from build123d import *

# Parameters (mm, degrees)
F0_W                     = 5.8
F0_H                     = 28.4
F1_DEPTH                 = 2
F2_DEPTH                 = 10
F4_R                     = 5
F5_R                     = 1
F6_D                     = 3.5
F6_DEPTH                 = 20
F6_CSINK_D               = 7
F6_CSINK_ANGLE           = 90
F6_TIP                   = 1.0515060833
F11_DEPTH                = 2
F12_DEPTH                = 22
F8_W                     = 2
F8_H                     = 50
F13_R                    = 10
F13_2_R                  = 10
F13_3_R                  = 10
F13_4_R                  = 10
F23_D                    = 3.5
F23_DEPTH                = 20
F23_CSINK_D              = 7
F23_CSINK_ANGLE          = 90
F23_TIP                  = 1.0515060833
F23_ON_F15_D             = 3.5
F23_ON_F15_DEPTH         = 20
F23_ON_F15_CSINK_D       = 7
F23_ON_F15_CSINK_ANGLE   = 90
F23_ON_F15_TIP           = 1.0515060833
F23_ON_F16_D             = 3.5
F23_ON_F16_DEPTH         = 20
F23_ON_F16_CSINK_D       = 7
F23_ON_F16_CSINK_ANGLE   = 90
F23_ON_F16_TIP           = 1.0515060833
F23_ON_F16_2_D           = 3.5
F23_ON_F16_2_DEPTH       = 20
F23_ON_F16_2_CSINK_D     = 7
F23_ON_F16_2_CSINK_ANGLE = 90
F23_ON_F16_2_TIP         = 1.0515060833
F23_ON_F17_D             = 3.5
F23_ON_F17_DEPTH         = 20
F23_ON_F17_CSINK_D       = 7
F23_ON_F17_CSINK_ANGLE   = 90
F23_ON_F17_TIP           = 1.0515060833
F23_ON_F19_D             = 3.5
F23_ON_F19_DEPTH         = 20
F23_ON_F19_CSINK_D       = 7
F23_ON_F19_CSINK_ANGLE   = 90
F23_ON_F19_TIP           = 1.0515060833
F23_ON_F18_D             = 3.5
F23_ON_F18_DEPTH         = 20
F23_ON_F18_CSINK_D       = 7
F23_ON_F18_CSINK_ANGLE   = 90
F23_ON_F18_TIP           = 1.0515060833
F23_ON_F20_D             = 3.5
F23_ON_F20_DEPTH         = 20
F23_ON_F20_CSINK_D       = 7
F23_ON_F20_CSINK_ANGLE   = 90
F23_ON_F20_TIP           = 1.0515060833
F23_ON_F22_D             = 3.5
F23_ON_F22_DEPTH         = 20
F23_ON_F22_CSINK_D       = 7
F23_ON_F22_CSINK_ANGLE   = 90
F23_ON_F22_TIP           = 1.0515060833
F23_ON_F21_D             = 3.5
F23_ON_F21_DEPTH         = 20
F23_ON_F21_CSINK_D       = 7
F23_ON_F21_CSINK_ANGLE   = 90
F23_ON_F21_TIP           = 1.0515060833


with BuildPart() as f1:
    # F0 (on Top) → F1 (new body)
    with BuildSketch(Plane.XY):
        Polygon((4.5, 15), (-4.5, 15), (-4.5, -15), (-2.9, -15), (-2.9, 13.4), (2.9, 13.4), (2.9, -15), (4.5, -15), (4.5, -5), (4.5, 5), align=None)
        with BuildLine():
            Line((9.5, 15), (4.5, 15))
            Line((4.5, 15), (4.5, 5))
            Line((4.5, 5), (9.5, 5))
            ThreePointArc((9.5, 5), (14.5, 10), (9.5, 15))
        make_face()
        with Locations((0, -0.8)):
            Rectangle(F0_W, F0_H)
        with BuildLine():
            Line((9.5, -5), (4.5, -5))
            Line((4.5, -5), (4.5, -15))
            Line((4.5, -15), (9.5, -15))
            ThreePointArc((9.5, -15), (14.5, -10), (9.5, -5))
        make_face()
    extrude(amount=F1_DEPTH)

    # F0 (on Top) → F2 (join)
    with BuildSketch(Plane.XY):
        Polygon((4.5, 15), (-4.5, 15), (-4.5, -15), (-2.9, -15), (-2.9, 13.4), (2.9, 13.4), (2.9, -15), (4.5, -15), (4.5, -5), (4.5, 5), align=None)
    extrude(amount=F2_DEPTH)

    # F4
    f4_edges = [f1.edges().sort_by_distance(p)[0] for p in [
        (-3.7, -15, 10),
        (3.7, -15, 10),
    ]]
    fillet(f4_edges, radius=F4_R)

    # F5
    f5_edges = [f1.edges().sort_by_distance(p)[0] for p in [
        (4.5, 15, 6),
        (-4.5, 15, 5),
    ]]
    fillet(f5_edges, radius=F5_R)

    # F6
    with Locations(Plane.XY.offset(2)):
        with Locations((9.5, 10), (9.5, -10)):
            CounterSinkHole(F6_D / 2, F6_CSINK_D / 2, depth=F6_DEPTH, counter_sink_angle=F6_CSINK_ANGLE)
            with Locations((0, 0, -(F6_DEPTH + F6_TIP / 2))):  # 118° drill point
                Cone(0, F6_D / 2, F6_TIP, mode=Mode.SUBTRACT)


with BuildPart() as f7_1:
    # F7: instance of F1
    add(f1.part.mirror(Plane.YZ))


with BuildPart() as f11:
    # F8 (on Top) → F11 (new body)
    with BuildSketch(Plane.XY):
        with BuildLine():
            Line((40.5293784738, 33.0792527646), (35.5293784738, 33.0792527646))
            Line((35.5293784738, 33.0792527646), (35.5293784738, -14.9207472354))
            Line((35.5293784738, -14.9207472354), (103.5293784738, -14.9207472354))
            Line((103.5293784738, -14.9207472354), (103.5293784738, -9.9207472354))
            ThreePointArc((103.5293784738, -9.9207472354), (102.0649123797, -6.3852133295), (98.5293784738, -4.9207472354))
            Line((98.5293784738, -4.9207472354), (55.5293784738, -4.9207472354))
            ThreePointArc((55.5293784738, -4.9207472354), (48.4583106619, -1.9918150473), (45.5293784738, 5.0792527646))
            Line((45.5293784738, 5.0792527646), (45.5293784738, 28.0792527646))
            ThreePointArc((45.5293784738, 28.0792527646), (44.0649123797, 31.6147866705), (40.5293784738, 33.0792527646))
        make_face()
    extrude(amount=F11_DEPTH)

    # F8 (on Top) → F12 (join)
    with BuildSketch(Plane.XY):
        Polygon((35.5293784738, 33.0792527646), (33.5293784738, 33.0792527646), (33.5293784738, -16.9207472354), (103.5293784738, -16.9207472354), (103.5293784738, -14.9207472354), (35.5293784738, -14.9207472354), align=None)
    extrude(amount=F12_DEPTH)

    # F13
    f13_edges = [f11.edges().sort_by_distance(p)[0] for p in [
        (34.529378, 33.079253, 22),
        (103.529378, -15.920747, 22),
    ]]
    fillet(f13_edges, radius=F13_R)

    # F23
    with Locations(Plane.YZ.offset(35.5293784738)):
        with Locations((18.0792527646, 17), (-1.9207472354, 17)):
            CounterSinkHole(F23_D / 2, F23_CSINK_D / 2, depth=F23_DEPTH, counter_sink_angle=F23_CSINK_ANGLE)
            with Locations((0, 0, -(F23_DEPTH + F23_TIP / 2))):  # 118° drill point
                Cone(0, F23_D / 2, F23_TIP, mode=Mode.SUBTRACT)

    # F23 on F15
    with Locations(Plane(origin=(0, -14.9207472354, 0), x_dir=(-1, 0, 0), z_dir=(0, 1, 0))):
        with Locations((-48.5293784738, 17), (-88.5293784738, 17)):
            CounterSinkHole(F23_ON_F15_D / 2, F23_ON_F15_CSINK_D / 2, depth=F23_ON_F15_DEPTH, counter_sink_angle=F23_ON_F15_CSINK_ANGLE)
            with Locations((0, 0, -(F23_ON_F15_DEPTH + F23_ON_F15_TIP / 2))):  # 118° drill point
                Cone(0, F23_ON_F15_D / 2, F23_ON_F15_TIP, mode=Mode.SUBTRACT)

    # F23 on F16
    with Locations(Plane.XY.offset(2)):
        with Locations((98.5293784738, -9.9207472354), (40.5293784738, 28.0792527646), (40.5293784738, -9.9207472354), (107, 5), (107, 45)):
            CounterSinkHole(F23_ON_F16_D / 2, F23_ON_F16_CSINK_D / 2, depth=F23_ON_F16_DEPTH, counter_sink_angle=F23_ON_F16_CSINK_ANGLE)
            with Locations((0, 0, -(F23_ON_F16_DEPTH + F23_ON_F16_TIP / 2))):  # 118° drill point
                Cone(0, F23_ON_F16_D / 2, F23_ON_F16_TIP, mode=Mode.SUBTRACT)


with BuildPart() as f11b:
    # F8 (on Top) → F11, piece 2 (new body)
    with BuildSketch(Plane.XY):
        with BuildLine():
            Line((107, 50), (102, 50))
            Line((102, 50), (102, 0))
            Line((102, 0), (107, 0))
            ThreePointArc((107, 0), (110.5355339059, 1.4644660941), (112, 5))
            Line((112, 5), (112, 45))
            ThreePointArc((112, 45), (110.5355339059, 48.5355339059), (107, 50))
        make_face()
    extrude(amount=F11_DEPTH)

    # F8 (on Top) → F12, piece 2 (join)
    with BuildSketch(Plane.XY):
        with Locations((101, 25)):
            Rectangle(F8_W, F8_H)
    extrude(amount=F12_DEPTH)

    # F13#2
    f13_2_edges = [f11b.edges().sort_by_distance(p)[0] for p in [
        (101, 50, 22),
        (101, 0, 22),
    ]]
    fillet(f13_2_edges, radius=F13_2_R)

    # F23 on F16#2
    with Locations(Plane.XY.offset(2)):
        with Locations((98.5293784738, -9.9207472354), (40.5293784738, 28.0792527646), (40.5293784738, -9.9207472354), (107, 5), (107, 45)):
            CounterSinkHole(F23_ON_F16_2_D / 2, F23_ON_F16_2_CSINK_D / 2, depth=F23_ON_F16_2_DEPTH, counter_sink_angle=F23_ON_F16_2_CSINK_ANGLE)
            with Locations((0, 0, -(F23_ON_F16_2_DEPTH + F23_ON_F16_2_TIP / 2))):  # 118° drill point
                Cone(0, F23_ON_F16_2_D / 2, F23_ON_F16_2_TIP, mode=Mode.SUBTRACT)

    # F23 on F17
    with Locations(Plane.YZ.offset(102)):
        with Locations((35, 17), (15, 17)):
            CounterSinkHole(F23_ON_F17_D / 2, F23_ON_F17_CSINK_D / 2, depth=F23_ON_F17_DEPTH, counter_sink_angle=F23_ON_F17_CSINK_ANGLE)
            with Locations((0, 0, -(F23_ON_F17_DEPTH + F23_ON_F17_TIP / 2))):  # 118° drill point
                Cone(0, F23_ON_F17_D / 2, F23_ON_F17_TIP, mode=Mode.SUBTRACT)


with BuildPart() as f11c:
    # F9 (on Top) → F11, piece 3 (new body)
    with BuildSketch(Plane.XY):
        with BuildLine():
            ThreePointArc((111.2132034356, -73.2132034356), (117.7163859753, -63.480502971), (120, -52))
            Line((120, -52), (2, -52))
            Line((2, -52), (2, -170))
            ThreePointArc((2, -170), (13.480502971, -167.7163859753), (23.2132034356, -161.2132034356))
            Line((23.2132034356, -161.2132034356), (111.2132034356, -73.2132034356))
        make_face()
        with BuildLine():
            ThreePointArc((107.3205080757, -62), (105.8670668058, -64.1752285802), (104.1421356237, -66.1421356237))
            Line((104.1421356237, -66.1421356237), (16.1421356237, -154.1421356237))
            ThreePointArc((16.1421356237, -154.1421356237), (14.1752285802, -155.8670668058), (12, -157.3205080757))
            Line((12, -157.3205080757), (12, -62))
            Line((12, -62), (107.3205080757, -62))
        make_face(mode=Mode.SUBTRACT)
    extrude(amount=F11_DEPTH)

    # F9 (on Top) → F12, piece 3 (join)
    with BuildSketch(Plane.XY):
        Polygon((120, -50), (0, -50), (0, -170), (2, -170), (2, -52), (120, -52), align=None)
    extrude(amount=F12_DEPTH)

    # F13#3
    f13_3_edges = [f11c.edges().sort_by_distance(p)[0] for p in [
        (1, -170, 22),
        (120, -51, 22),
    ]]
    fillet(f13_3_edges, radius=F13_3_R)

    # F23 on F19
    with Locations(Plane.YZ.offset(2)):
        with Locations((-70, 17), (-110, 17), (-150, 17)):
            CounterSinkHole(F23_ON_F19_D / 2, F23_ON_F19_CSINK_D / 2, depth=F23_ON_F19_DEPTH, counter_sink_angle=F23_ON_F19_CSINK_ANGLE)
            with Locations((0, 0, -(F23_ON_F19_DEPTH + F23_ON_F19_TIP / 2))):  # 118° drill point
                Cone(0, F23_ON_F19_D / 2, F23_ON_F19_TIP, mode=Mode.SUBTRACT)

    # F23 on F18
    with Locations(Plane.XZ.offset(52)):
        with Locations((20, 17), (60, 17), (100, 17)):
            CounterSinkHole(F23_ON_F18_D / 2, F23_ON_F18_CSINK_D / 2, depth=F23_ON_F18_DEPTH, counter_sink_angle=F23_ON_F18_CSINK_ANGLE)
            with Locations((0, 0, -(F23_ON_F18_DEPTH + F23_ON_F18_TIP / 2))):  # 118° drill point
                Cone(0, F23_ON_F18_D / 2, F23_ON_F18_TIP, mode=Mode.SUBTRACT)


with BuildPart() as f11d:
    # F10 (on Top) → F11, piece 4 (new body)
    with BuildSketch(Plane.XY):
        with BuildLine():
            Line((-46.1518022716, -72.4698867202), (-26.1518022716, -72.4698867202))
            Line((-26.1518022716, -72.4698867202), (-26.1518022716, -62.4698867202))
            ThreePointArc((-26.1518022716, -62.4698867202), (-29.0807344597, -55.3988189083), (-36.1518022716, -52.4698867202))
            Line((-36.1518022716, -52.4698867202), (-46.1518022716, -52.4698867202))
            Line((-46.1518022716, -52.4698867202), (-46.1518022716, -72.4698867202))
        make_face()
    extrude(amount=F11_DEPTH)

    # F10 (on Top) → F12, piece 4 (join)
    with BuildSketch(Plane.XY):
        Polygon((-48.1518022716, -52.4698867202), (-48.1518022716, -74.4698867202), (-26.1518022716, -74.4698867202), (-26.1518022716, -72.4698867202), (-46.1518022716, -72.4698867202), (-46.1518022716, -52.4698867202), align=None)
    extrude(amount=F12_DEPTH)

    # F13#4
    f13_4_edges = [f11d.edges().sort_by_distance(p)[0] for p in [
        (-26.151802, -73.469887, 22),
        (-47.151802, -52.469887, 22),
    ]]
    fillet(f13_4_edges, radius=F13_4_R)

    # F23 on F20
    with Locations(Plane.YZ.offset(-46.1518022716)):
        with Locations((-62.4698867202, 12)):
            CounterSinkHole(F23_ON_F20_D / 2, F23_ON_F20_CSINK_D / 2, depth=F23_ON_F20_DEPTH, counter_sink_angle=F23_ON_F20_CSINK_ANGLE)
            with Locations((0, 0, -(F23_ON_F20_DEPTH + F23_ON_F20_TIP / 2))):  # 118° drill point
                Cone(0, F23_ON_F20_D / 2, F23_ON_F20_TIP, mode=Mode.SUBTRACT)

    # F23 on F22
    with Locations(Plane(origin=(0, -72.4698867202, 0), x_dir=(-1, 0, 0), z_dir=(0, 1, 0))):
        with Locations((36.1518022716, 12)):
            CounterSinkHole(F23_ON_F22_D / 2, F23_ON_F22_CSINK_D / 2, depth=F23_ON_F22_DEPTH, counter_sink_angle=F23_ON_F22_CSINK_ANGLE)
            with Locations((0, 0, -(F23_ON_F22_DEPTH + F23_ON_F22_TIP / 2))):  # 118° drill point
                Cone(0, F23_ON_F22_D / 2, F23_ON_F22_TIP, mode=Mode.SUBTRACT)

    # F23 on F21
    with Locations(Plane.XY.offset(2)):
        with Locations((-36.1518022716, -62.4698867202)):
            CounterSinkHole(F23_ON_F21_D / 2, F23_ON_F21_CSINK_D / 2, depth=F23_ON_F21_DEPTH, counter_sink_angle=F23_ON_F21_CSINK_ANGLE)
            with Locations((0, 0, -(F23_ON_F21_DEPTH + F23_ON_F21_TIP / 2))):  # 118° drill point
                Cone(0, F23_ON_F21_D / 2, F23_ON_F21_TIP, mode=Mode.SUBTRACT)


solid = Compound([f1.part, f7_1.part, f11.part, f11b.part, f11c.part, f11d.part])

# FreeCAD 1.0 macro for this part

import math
import FreeCAD as App
import Part
import Sketcher

V = App.Vector


def edges_at(feature, points):
    """Names of the edges that pass closest to the given points."""
    edges = feature.Shape.Edges
    near = lambda p: min(range(len(edges)), key=lambda i: edges[i].distToShape(Part.Vertex(*p))[0])
    return sorted({f"Edge{near(p) + 1}" for p in points})


def add_polygon(sketch, points):
    """Adds a closed chain of lines whose ends are joined by coincident constraints."""
    first, n = sketch.GeometryCount, len(points)
    for a, b in zip(points, points[1:] + points[:1]):
        sketch.addGeometry(Part.LineSegment(App.Vector(*a, 0), App.Vector(*b, 0)), False)
    for i in range(n):
        sketch.addConstraint(Sketcher.Constraint("Coincident", first + i, 2, first + (i + 1) % n, 1))

doc = App.newDocument("Part")
params = doc.addObject("Spreadsheet::Sheet", "Params")
for row, (alias, value) in enumerate([
    ("sketch1_radius", "5 mm"),
    ("sketch1_width", "14 mm"),
    ("sketch1_width2", "5 mm"),
    ("sketch1_height", "30 mm"),
    ("pad1_length", "2 mm"),
    ("sketch2_width", "9 mm"),
    ("sketch2_height", "30 mm"),
    ("sketch2_width2", "1.6 mm"),
    ("sketch2_height2", "28.4 mm"),
    ("pad2_length", "10 mm"),
    ("fillet_radius", "5 mm"),
    ("fillet2_radius", "1 mm"),
    ("sketch3_diameter", "3.5 mm"),
    ("hole_diameter", "3.5 mm"),
    ("hole_depth", "20 mm"),
    ("hole_csink_diameter", "7 mm"),
    ("sketch4_radius", "5 mm"),
    ("sketch4_radius2", "10 mm"),
    ("sketch4_width", "5 mm"),
    ("sketch4_width2", "68 mm"),
    ("sketch4_height", "48 mm"),
    ("pad3_length", "2 mm"),
    ("sketch5_width", "2 mm"),
    ("sketch5_width2", "70 mm"),
    ("sketch5_height", "50 mm"),
    ("pad4_length", "22 mm"),
    ("fillet3_radius", "10 mm"),
    ("sketch6_diameter", "3.5 mm"),
    ("hole2_diameter", "3.5 mm"),
    ("hole2_depth", "20 mm"),
    ("hole2_csink_diameter", "7 mm"),
    ("sketch7_diameter", "3.5 mm"),
    ("hole3_diameter", "3.5 mm"),
    ("hole3_depth", "20 mm"),
    ("hole3_csink_diameter", "7 mm"),
    ("sketch8_diameter", "3.5 mm"),
    ("hole4_diameter", "3.5 mm"),
    ("hole4_depth", "20 mm"),
    ("hole4_csink_diameter", "7 mm"),
    ("sketch9_radius", "5 mm"),
    ("sketch9_width", "5 mm"),
    ("sketch9_height", "50 mm"),
    ("pad5_length", "2 mm"),
    ("sketch10_width", "2 mm"),
    ("sketch10_height", "50 mm"),
    ("pad6_length", "22 mm"),
    ("fillet4_radius", "10 mm"),
    ("sketch11_diameter", "3.5 mm"),
    ("hole5_diameter", "3.5 mm"),
    ("hole5_depth", "20 mm"),
    ("hole5_csink_diameter", "7 mm"),
    ("sketch12_diameter", "3.5 mm"),
    ("hole6_diameter", "3.5 mm"),
    ("hole6_depth", "20 mm"),
    ("hole6_csink_diameter", "7 mm"),
    ("sketch13_radius", "30 mm"),
    ("sketch13_radius2", "20 mm"),
    ("sketch13_width", "118 mm"),
    ("pad7_length", "2 mm"),
    ("sketch14_width", "120 mm"),
    ("sketch14_width2", "2 mm"),
    ("pad8_length", "22 mm"),
    ("fillet5_radius", "10 mm"),
    ("sketch15_diameter", "3.5 mm"),
    ("hole7_diameter", "3.5 mm"),
    ("hole7_depth", "20 mm"),
    ("hole7_csink_diameter", "7 mm"),
    ("sketch16_diameter", "3.5 mm"),
    ("hole8_diameter", "3.5 mm"),
    ("hole8_depth", "20 mm"),
    ("hole8_csink_diameter", "7 mm"),
    ("sketch17_radius", "10 mm"),
    ("sketch17_width", "20 mm"),
    ("pad9_length", "2 mm"),
    ("sketch18_width", "22 mm"),
    ("sketch18_width2", "20 mm"),
    ("pad10_length", "22 mm"),
    ("fillet6_radius", "10 mm"),
    ("sketch19_diameter", "3.5 mm"),
    ("hole9_diameter", "3.5 mm"),
    ("hole9_depth", "20 mm"),
    ("hole9_csink_diameter", "7 mm"),
    ("sketch20_diameter", "3.5 mm"),
    ("hole10_diameter", "3.5 mm"),
    ("hole10_depth", "20 mm"),
    ("hole10_csink_diameter", "7 mm"),
    ("sketch21_diameter", "3.5 mm"),
    ("hole11_diameter", "3.5 mm"),
    ("hole11_depth", "20 mm"),
    ("hole11_csink_diameter", "7 mm"),
], start=1):
    params.set(f"A{row}", alias)
    params.set(f"B{row}", "=" + value)
    params.setAlias(f"B{row}", alias)

body = doc.addObject("PartDesign::Body", "Body")

# Sketch on XY plane
sketch1 = doc.addObject("Sketcher::SketchObject", "Sketch")
body.addObject(sketch1)
sketch1.AttachmentSupport = (doc.XY_Plane, [""])
sketch1.MapMode = "FlatFace"
sketch1.addGeometry([
    Part.LineSegment(V(-4, 15, 0), V(-4, -15, 0)),  # 0
    Part.LineSegment(V(-4, -15, 0), V(10, -15, 0)),  # 1
    Part.ArcOfCircle(Part.Circle(V(10, -10, 0), V(0, 0, 1), 5), math.radians(-90), math.radians(90)),  # 2
    Part.LineSegment(V(10, -5, 0), V(4, -5, 0)),  # 3
    Part.LineSegment(V(4, -5, 0), V(4, 5, 0)),  # 4
    Part.LineSegment(V(4, 5, 0), V(10, 5, 0)),  # 5
    Part.ArcOfCircle(Part.Circle(V(10, 10, 0), V(0, 0, 1), 5), math.radians(-90), math.radians(90)),  # 6
    Part.LineSegment(V(10, 15, 0), V(-4, 15, 0)),  # 7
], False)
sketch1.addConstraint([
    Sketcher.Constraint("Coincident", 0, 2, 1, 1),
    Sketcher.Constraint("Tangent", 1, 2, 2, 1),
    Sketcher.Constraint("Tangent", 2, 2, 3, 1),
    Sketcher.Constraint("Coincident", 3, 2, 4, 1),
    Sketcher.Constraint("Coincident", 4, 2, 5, 1),
    Sketcher.Constraint("Tangent", 5, 2, 6, 1),
    Sketcher.Constraint("Tangent", 6, 2, 7, 1),
    Sketcher.Constraint("Coincident", 7, 2, 0, 1),
    Sketcher.Constraint("Vertical", 0),
    Sketcher.Constraint("Horizontal", 1),
    Sketcher.Constraint("Horizontal", 3),
    Sketcher.Constraint("Vertical", 4),
    Sketcher.Constraint("Horizontal", 5),
    Sketcher.Constraint("Horizontal", 7),
    Sketcher.Constraint("Equal", 2, 6),
    Sketcher.Constraint("Symmetric", 2, 3, 6, 3, -1),
    Sketcher.Constraint("Radius", 2, 5.0),
    Sketcher.Constraint("DistanceX", 1, 1, 1, 2, 14.0),
    Sketcher.Constraint("DistanceX", 3, 2, 3, 1, 5.0),
    Sketcher.Constraint("DistanceY", 0, 2, 0, 1, 30.0),
    Sketcher.Constraint("DistanceX", -1, 1, 2, 3, 9.5),
])
sketch1.setExpression("Constraints[16]", "Params.sketch1_radius")
sketch1.setExpression("Constraints[17]", "Params.sketch1_width")
sketch1.setExpression("Constraints[18]", "Params.sketch1_width2")
sketch1.setExpression("Constraints[19]", "Params.sketch1_height")
pad1 = doc.addObject("PartDesign::Pad", "Pad")
body.addObject(pad1)
pad1.Profile = sketch1
pad1.setExpression("Length", "Params.pad1_length")

# Sketch on XY plane
sketch2 = doc.addObject("Sketcher::SketchObject", "Sketch001")
body.addObject(sketch2)
sketch2.AttachmentSupport = (doc.XY_Plane, [""])
sketch2.MapMode = "FlatFace"
add_polygon(sketch2, [(4.5, 15), (-4.5, 15), (-4.5, -15), (-2.9, -15), (-2.9, 13.4), (2.9, 13.4), (2.9, -15), (4.5, -15)])  # lines 0-7
sketch2.addConstraint([
    Sketcher.Constraint("Horizontal", 0),
    Sketcher.Constraint("Vertical", 1),
    Sketcher.Constraint("Horizontal", 2),
    Sketcher.Constraint("Vertical", 3),
    Sketcher.Constraint("Horizontal", 4),
    Sketcher.Constraint("Vertical", 5),
    Sketcher.Constraint("Horizontal", 6),
    Sketcher.Constraint("Vertical", 7),
    Sketcher.Constraint("Symmetric", 0, 2, 6, 2, -1, 1),
    Sketcher.Constraint("Symmetric", 2, 2, 5, 2, -2),
    Sketcher.Constraint("DistanceX", 0, 2, 0, 1, 9.0),
    Sketcher.Constraint("DistanceY", 1, 2, 1, 1, 30.0),
    Sketcher.Constraint("DistanceX", 2, 1, 2, 2, 1.6),
    Sketcher.Constraint("DistanceY", 3, 1, 3, 2, 28.4),
])
sketch2.setExpression("Constraints[18]", "Params.sketch2_width")
sketch2.setExpression("Constraints[19]", "Params.sketch2_height")
sketch2.setExpression("Constraints[20]", "Params.sketch2_width2")
sketch2.setExpression("Constraints[21]", "Params.sketch2_height2")
pad2 = doc.addObject("PartDesign::Pad", "Pad001")
body.addObject(pad2)
pad2.Profile = sketch2
pad2.setExpression("Length", "Params.pad2_length")
doc.recompute()

fillet = doc.addObject("PartDesign::Fillet", "Fillet")
body.addObject(fillet)
fillet.Base = (pad2, edges_at(pad2, [(-3.7, -15, 10), (3.7, -15, 10)]))
fillet.setExpression("Radius", "Params.fillet_radius")
doc.recompute()

fillet2 = doc.addObject("PartDesign::Fillet", "Fillet001")
body.addObject(fillet2)
fillet2.Base = (fillet, edges_at(fillet, [(4.5, 15, 6), (-4.5, 15, 5)]))
fillet2.setExpression("Radius", "Params.fillet2_radius")

# Sketch on XY plane
sketch3 = doc.addObject("Sketcher::SketchObject", "Sketch002")
body.addObject(sketch3)
sketch3.AttachmentSupport = (doc.XY_Plane, [""])
sketch3.MapMode = "FlatFace"
sketch3.AttachmentOffset = App.Placement(V(0, 0, 2), App.Rotation())
sketch3.addGeometry([
    Part.Circle(V(9.5, 10, 0), V(0, 0, 1), 1.8),
    Part.Circle(V(9.5, -10, 0), V(0, 0, 1), 1.8),
], False)
sketch3.addConstraint([
    Sketcher.Constraint("Equal", 0, 1),
    Sketcher.Constraint("Symmetric", 0, 3, 1, 3, -1),
    Sketcher.Constraint("Diameter", 0, 3.5),
    Sketcher.Constraint("DistanceY", -1, 1, 0, 3, 10.0),
    Sketcher.Constraint("DistanceX", -1, 1, 0, 3, 9.5),
])
sketch3.setExpression("Constraints[2]", "Params.sketch3_diameter")
doc.recompute()
hole = doc.addObject("PartDesign::Hole", "Hole")
body.addObject(hole)
hole.Profile = sketch3
hole.ThreadType = "None"
hole.setExpression("Diameter", "Params.hole_diameter")
hole.DepthType = "Dimension"
hole.setExpression("Depth", "Params.hole_depth")
hole.DrillPoint = "Angled"
hole.DrillPointAngle = 118
hole.HoleCutType = "Countersink"
hole.setExpression("HoleCutDiameter", "Params.hole_csink_diameter")
hole.HoleCutCountersinkAngle = 90
body2 = doc.addObject("PartDesign::Body", "Body001")
doc.recompute()

mirroring = doc.addObject("Part::Mirroring", "Mirroring")
mirroring.Source = body
mirroring.Base = V(0, 0, 0)
mirroring.Normal = V(1, 0, 0)
body2.BaseFeature = mirroring
doc.recompute()
body3 = doc.addObject("PartDesign::Body", "Body002")

# Sketch on XY plane
sketch4 = doc.addObject("Sketcher::SketchObject", "Sketch003")
body3.addObject(sketch4)
sketch4.AttachmentSupport = (doc.getObject("XY_Plane002"), [""])
sketch4.MapMode = "FlatFace"
sketch4.addGeometry([
    Part.LineSegment(V(41, 33, 0), V(36, 33, 0)),  # 0
    Part.LineSegment(V(36, 33, 0), V(36, -15, 0)),  # 1
    Part.LineSegment(V(36, -15, 0), V(104, -15, 0)),  # 2
    Part.LineSegment(V(104, -15, 0), V(104, -10, 0)),  # 3
    Part.ArcOfCircle(Part.Circle(V(99, -10, 0), V(0, 0, 1), 5), math.radians(0), math.radians(90)),  # 4
    Part.LineSegment(V(99, -5, 0), V(56, -5, 0)),  # 5
    Part.ArcOfCircle(Part.Circle(V(56, 5, 0), V(0, 0, 1), 10), math.radians(180), math.radians(270)),  # 6
    Part.LineSegment(V(46, 5, 0), V(46, 28, 0)),  # 7
    Part.ArcOfCircle(Part.Circle(V(41, 28, 0), V(0, 0, 1), 5), math.radians(0), math.radians(90)),  # 8
], False)
sketch4.addConstraint([
    Sketcher.Constraint("Coincident", 0, 2, 1, 1),
    Sketcher.Constraint("Coincident", 1, 2, 2, 1),
    Sketcher.Constraint("Coincident", 2, 2, 3, 1),
    Sketcher.Constraint("Tangent", 3, 2, 4, 1),
    Sketcher.Constraint("Tangent", 4, 2, 5, 1),
    Sketcher.Constraint("Tangent", 5, 2, 6, 2),
    Sketcher.Constraint("Tangent", 6, 1, 7, 1),
    Sketcher.Constraint("Tangent", 7, 2, 8, 1),
    Sketcher.Constraint("Tangent", 8, 2, 0, 1),
    Sketcher.Constraint("Horizontal", 0),
    Sketcher.Constraint("Vertical", 1),
    Sketcher.Constraint("Horizontal", 2),
    Sketcher.Constraint("Vertical", 3),
    Sketcher.Constraint("Horizontal", 5),
    Sketcher.Constraint("Vertical", 7),
    Sketcher.Constraint("Equal", 4, 8),
    Sketcher.Constraint("Equal", 0, 3),
    Sketcher.Constraint("Radius", 4, 5.0),
    Sketcher.Constraint("Radius", 6, 10.0),
    Sketcher.Constraint("DistanceX", 0, 2, 0, 1, 5.0),
    Sketcher.Constraint("DistanceX", 2, 1, 2, 2, 68.0),
    Sketcher.Constraint("DistanceY", 1, 2, 1, 1, 48.0),
    Sketcher.Constraint("DistanceX", -1, 1, 4, 3, 98.529378),
    Sketcher.Constraint("DistanceY", 4, 3, -1, 1, 9.920747),
])
sketch4.setExpression("Constraints[17]", "Params.sketch4_radius")
sketch4.setExpression("Constraints[18]", "Params.sketch4_radius2")
sketch4.setExpression("Constraints[19]", "Params.sketch4_width")
sketch4.setExpression("Constraints[20]", "Params.sketch4_width2")
sketch4.setExpression("Constraints[21]", "Params.sketch4_height")
pad3 = doc.addObject("PartDesign::Pad", "Pad002")
body3.addObject(pad3)
pad3.Profile = sketch4
pad3.setExpression("Length", "Params.pad3_length")

# Sketch on XY plane
sketch5 = doc.addObject("Sketcher::SketchObject", "Sketch004")
body3.addObject(sketch5)
sketch5.AttachmentSupport = (doc.getObject("XY_Plane002"), [""])
sketch5.MapMode = "FlatFace"
add_polygon(sketch5, [(35.5, 33.1), (33.5, 33.1), (33.5, -16.9), (103.5, -16.9), (103.5, -14.9), (35.5, -14.9)])  # lines 0-5
sketch5.addConstraint([
    Sketcher.Constraint("Horizontal", 0),
    Sketcher.Constraint("Vertical", 1),
    Sketcher.Constraint("Horizontal", 2),
    Sketcher.Constraint("Vertical", 3),
    Sketcher.Constraint("Horizontal", 4),
    Sketcher.Constraint("Vertical", 5),
    Sketcher.Constraint("Equal", 0, 3),
    Sketcher.Constraint("DistanceX", 0, 2, 0, 1, 2.0),
    Sketcher.Constraint("DistanceX", 2, 1, 2, 2, 70.0),
    Sketcher.Constraint("DistanceY", 1, 2, 1, 1, 50.0),
    Sketcher.Constraint("DistanceX", -1, 1, 0, 2, 33.529378),
    Sketcher.Constraint("DistanceY", -1, 1, 0, 2, 33.079253),
])
sketch5.setExpression("Constraints[13]", "Params.sketch5_width")
sketch5.setExpression("Constraints[14]", "Params.sketch5_width2")
sketch5.setExpression("Constraints[15]", "Params.sketch5_height")
pad4 = doc.addObject("PartDesign::Pad", "Pad003")
body3.addObject(pad4)
pad4.Profile = sketch5
pad4.setExpression("Length", "Params.pad4_length")
doc.recompute()

fillet3 = doc.addObject("PartDesign::Fillet", "Fillet002")
body3.addObject(fillet3)
fillet3.Base = (pad4, edges_at(pad4, [(34.529, 33.079, 22), (103.529, -15.921, 22)]))
fillet3.setExpression("Radius", "Params.fillet3_radius")

# Sketch on YZ plane
sketch6 = doc.addObject("Sketcher::SketchObject", "Sketch005")
body3.addObject(sketch6)
sketch6.AttachmentSupport = (doc.getObject("YZ_Plane002"), [""])
sketch6.MapMode = "FlatFace"
sketch6.AttachmentOffset = App.Placement(V(0, 0, 35.529378), App.Rotation())
sketch6.addGeometry([
    Part.Circle(V(18.1, 17, 0), V(0, 0, 1), 1.8),
    Part.Circle(V(-1.9, 17, 0), V(0, 0, 1), 1.8),
], False)
sketch6.addConstraint([
    Sketcher.Constraint("Equal", 0, 1),
    Sketcher.Constraint("Horizontal", 0, 3, 1, 3),
    Sketcher.Constraint("Diameter", 0, 3.5),
    Sketcher.Constraint("DistanceY", -1, 1, 0, 3, 17.0),
    Sketcher.Constraint("DistanceX", 1, 3, 0, 3, 20.0),
    Sketcher.Constraint("DistanceX", -1, 1, 0, 3, 18.079253),
])
sketch6.setExpression("Constraints[2]", "Params.sketch6_diameter")
doc.recompute()
hole2 = doc.addObject("PartDesign::Hole", "Hole001")
body3.addObject(hole2)
hole2.Profile = sketch6
hole2.ThreadType = "None"
hole2.setExpression("Diameter", "Params.hole2_diameter")
hole2.DepthType = "Dimension"
hole2.setExpression("Depth", "Params.hole2_depth")
hole2.DrillPoint = "Angled"
hole2.DrillPointAngle = 118
hole2.HoleCutType = "Countersink"
hole2.setExpression("HoleCutDiameter", "Params.hole2_csink_diameter")
hole2.HoleCutCountersinkAngle = 90

# Sketch on XZ plane
sketch7 = doc.addObject("Sketcher::SketchObject", "Sketch006")
body3.addObject(sketch7)
sketch7.AttachmentSupport = (doc.getObject("XZ_Plane002"), [""])
sketch7.MapMode = "FlatFace"
sketch7.AttachmentOffset = App.Placement(V(0, 0, 14.920747), App.Rotation())
sketch7.addGeometry([
    Part.Circle(V(48.5, 17, 0), V(0, 0, 1), 1.8),
    Part.Circle(V(88.5, 17, 0), V(0, 0, 1), 1.8),
], False)
sketch7.addConstraint([
    Sketcher.Constraint("Equal", 0, 1),
    Sketcher.Constraint("Horizontal", 0, 3, 1, 3),
    Sketcher.Constraint("Diameter", 0, 3.5),
    Sketcher.Constraint("DistanceY", -1, 1, 0, 3, 17.0),
    Sketcher.Constraint("DistanceX", 0, 3, 1, 3, 40.0),
    Sketcher.Constraint("DistanceX", -1, 1, 0, 3, 48.529378),
])
sketch7.setExpression("Constraints[2]", "Params.sketch7_diameter")
doc.recompute()
hole3 = doc.addObject("PartDesign::Hole", "Hole002")
body3.addObject(hole3)
hole3.Profile = sketch7
hole3.ThreadType = "None"
hole3.setExpression("Diameter", "Params.hole3_diameter")
hole3.DepthType = "Dimension"
hole3.setExpression("Depth", "Params.hole3_depth")
hole3.DrillPoint = "Angled"
hole3.DrillPointAngle = 118
hole3.HoleCutType = "Countersink"
hole3.setExpression("HoleCutDiameter", "Params.hole3_csink_diameter")
hole3.HoleCutCountersinkAngle = 90
hole3.Reversed = True

# Sketch on XY plane
sketch8 = doc.addObject("Sketcher::SketchObject", "Sketch007")
body3.addObject(sketch8)
sketch8.AttachmentSupport = (doc.getObject("XY_Plane002"), [""])
sketch8.MapMode = "FlatFace"
sketch8.AttachmentOffset = App.Placement(V(0, 0, 2), App.Rotation())
sketch8.addGeometry([
    Part.Circle(V(98.5, -9.9, 0), V(0, 0, 1), 1.8),  # 0
    Part.Circle(V(40.5, 28.1, 0), V(0, 0, 1), 1.8),  # 1
    Part.Circle(V(40.5, -9.9, 0), V(0, 0, 1), 1.8),  # 2
    Part.Circle(V(107, 5, 0), V(0, 0, 1), 1.8),  # 3
    Part.Circle(V(107, 45, 0), V(0, 0, 1), 1.8),  # 4
], False)
sketch8.addConstraint([
    Sketcher.Constraint("Equal", 0, 1),
    Sketcher.Constraint("Equal", 1, 2),
    Sketcher.Constraint("Equal", 2, 3),
    Sketcher.Constraint("Equal", 3, 4),
    Sketcher.Constraint("Horizontal", 0, 3, 2, 3),
    Sketcher.Constraint("Vertical", 1, 3, 2, 3),
    Sketcher.Constraint("Vertical", 3, 3, 4, 3),
    Sketcher.Constraint("Diameter", 0, 3.5),
    Sketcher.Constraint("DistanceX", -1, 1, 3, 3, 107.0),
    Sketcher.Constraint("DistanceY", -1, 1, 3, 3, 5.0),
    Sketcher.Constraint("DistanceY", -1, 1, 4, 3, 45.0),
    Sketcher.Constraint("DistanceX", 1, 3, 0, 3, 58.0),
    Sketcher.Constraint("DistanceY", 0, 3, 1, 3, 38.0),
    Sketcher.Constraint("DistanceX", -1, 1, 0, 3, 98.529378),
    Sketcher.Constraint("DistanceY", 0, 3, -1, 1, 9.920747),
])
sketch8.setExpression("Constraints[7]", "Params.sketch8_diameter")
doc.recompute()
hole4 = doc.addObject("PartDesign::Hole", "Hole003")
body3.addObject(hole4)
hole4.Profile = sketch8
hole4.ThreadType = "None"
hole4.setExpression("Diameter", "Params.hole4_diameter")
hole4.DepthType = "Dimension"
hole4.setExpression("Depth", "Params.hole4_depth")
hole4.DrillPoint = "Angled"
hole4.DrillPointAngle = 118
hole4.HoleCutType = "Countersink"
hole4.setExpression("HoleCutDiameter", "Params.hole4_csink_diameter")
hole4.HoleCutCountersinkAngle = 90
body4 = doc.addObject("PartDesign::Body", "Body003")

# Sketch on XY plane
sketch9 = doc.addObject("Sketcher::SketchObject", "Sketch008")
body4.addObject(sketch9)
sketch9.AttachmentSupport = (doc.getObject("XY_Plane003"), [""])
sketch9.MapMode = "FlatFace"
sketch9.addGeometry([
    Part.LineSegment(V(107, 50, 0), V(102, 50, 0)),  # 0
    Part.LineSegment(V(102, 50, 0), V(102, 0, 0)),  # 1
    Part.LineSegment(V(102, 0, 0), V(107, 0, 0)),  # 2
    Part.ArcOfCircle(Part.Circle(V(107, 5, 0), V(0, 0, 1), 5), math.radians(-90), math.radians(0)),  # 3
    Part.LineSegment(V(112, 5, 0), V(112, 45, 0)),  # 4
    Part.ArcOfCircle(Part.Circle(V(107, 45, 0), V(0, 0, 1), 5), math.radians(0), math.radians(90)),  # 5
], False)
sketch9.addConstraint([
    Sketcher.Constraint("Coincident", 0, 2, 1, 1),
    Sketcher.Constraint("Coincident", 1, 2, 2, 1),
    Sketcher.Constraint("Tangent", 2, 2, 3, 1),
    Sketcher.Constraint("Tangent", 3, 2, 4, 1),
    Sketcher.Constraint("Tangent", 4, 2, 5, 1),
    Sketcher.Constraint("Tangent", 5, 2, 0, 1),
    Sketcher.Constraint("Horizontal", 0),
    Sketcher.Constraint("Vertical", 1),
    Sketcher.Constraint("Horizontal", 2),
    Sketcher.Constraint("Vertical", 4),
    Sketcher.Constraint("Equal", 3, 5),
    Sketcher.Constraint("PointOnObject", 1, 2, -1),
    Sketcher.Constraint("Radius", 3, 5.0),
    Sketcher.Constraint("DistanceX", 0, 2, 0, 1, 5.0),
    Sketcher.Constraint("DistanceY", 1, 2, 1, 1, 50.0),
    Sketcher.Constraint("DistanceX", -1, 1, 3, 3, 107.0),
])
sketch9.setExpression("Constraints[12]", "Params.sketch9_radius")
sketch9.setExpression("Constraints[13]", "Params.sketch9_width")
sketch9.setExpression("Constraints[14]", "Params.sketch9_height")
pad5 = doc.addObject("PartDesign::Pad", "Pad004")
body4.addObject(pad5)
pad5.Profile = sketch9
pad5.setExpression("Length", "Params.pad5_length")

# Sketch on XY plane
sketch10 = doc.addObject("Sketcher::SketchObject", "Sketch009")
body4.addObject(sketch10)
sketch10.AttachmentSupport = (doc.getObject("XY_Plane003"), [""])
sketch10.MapMode = "FlatFace"
add_polygon(sketch10, [(100, 50), (100, 0), (102, 0), (102, 50)])  # lines 0-3
sketch10.addConstraint([
    Sketcher.Constraint("Vertical", 0),
    Sketcher.Constraint("Horizontal", 1),
    Sketcher.Constraint("Vertical", 2),
    Sketcher.Constraint("Horizontal", 3),
    Sketcher.Constraint("PointOnObject", 0, 2, -1),
    Sketcher.Constraint("DistanceX", 1, 1, 1, 2, 2.0),
    Sketcher.Constraint("DistanceY", 0, 2, 0, 1, 50.0),
    Sketcher.Constraint("DistanceX", -1, 1, 0, 2, 100.0),
])
sketch10.setExpression("Constraints[9]", "Params.sketch10_width")
sketch10.setExpression("Constraints[10]", "Params.sketch10_height")
pad6 = doc.addObject("PartDesign::Pad", "Pad005")
body4.addObject(pad6)
pad6.Profile = sketch10
pad6.setExpression("Length", "Params.pad6_length")
doc.recompute()

fillet4 = doc.addObject("PartDesign::Fillet", "Fillet003")
body4.addObject(fillet4)
fillet4.Base = (pad6, edges_at(pad6, [(101, 50, 22), (101, 0, 22)]))
fillet4.setExpression("Radius", "Params.fillet4_radius")

# Sketch on XY plane
sketch11 = doc.addObject("Sketcher::SketchObject", "Sketch010")
body4.addObject(sketch11)
sketch11.AttachmentSupport = (doc.getObject("XY_Plane003"), [""])
sketch11.MapMode = "FlatFace"
sketch11.AttachmentOffset = App.Placement(V(0, 0, 2), App.Rotation())
sketch11.addGeometry([
    Part.Circle(V(98.5, -9.9, 0), V(0, 0, 1), 1.8),  # 0
    Part.Circle(V(40.5, 28.1, 0), V(0, 0, 1), 1.8),  # 1
    Part.Circle(V(40.5, -9.9, 0), V(0, 0, 1), 1.8),  # 2
    Part.Circle(V(107, 5, 0), V(0, 0, 1), 1.8),  # 3
    Part.Circle(V(107, 45, 0), V(0, 0, 1), 1.8),  # 4
], False)
sketch11.addConstraint([
    Sketcher.Constraint("Equal", 0, 1),
    Sketcher.Constraint("Equal", 1, 2),
    Sketcher.Constraint("Equal", 2, 3),
    Sketcher.Constraint("Equal", 3, 4),
    Sketcher.Constraint("Horizontal", 0, 3, 2, 3),
    Sketcher.Constraint("Vertical", 1, 3, 2, 3),
    Sketcher.Constraint("Vertical", 3, 3, 4, 3),
    Sketcher.Constraint("Diameter", 0, 3.5),
    Sketcher.Constraint("DistanceX", -1, 1, 3, 3, 107.0),
    Sketcher.Constraint("DistanceY", -1, 1, 3, 3, 5.0),
    Sketcher.Constraint("DistanceY", -1, 1, 4, 3, 45.0),
    Sketcher.Constraint("DistanceX", 1, 3, 0, 3, 58.0),
    Sketcher.Constraint("DistanceY", 0, 3, 1, 3, 38.0),
    Sketcher.Constraint("DistanceX", -1, 1, 0, 3, 98.529378),
    Sketcher.Constraint("DistanceY", 0, 3, -1, 1, 9.920747),
])
sketch11.setExpression("Constraints[7]", "Params.sketch11_diameter")
doc.recompute()
hole5 = doc.addObject("PartDesign::Hole", "Hole004")
body4.addObject(hole5)
hole5.Profile = sketch11
hole5.ThreadType = "None"
hole5.setExpression("Diameter", "Params.hole5_diameter")
hole5.DepthType = "Dimension"
hole5.setExpression("Depth", "Params.hole5_depth")
hole5.DrillPoint = "Angled"
hole5.DrillPointAngle = 118
hole5.HoleCutType = "Countersink"
hole5.setExpression("HoleCutDiameter", "Params.hole5_csink_diameter")
hole5.HoleCutCountersinkAngle = 90

# Sketch on YZ plane
sketch12 = doc.addObject("Sketcher::SketchObject", "Sketch011")
body4.addObject(sketch12)
sketch12.AttachmentSupport = (doc.getObject("YZ_Plane003"), [""])
sketch12.MapMode = "FlatFace"
sketch12.AttachmentOffset = App.Placement(V(0, 0, 102), App.Rotation())
sketch12.addGeometry([
    Part.Circle(V(35, 17, 0), V(0, 0, 1), 1.8),
    Part.Circle(V(15, 17, 0), V(0, 0, 1), 1.8),
], False)
sketch12.addConstraint([
    Sketcher.Constraint("Equal", 0, 1),
    Sketcher.Constraint("Horizontal", 0, 3, 1, 3),
    Sketcher.Constraint("Diameter", 0, 3.5),
    Sketcher.Constraint("DistanceX", -1, 1, 0, 3, 35.0),
    Sketcher.Constraint("DistanceY", -1, 1, 0, 3, 17.0),
    Sketcher.Constraint("DistanceX", -1, 1, 1, 3, 15.0),
])
sketch12.setExpression("Constraints[2]", "Params.sketch12_diameter")
doc.recompute()
hole6 = doc.addObject("PartDesign::Hole", "Hole005")
body4.addObject(hole6)
hole6.Profile = sketch12
hole6.ThreadType = "None"
hole6.setExpression("Diameter", "Params.hole6_diameter")
hole6.DepthType = "Dimension"
hole6.setExpression("Depth", "Params.hole6_depth")
hole6.DrillPoint = "Angled"
hole6.DrillPointAngle = 118
hole6.HoleCutType = "Countersink"
hole6.setExpression("HoleCutDiameter", "Params.hole6_csink_diameter")
hole6.HoleCutCountersinkAngle = 90
body5 = doc.addObject("PartDesign::Body", "Body004")

# Sketch on XY plane
sketch13 = doc.addObject("Sketcher::SketchObject", "Sketch012")
body5.addObject(sketch13)
sketch13.AttachmentSupport = (doc.getObject("XY_Plane004"), [""])
sketch13.MapMode = "FlatFace"
sketch13.addGeometry([
    Part.ArcOfCircle(Part.Circle(V(90, -52, 0), V(0, 0, 1), 30), math.radians(-45), math.radians(0)),  # 0
    Part.LineSegment(V(120, -52, 0), V(2, -52, 0)),  # 1
    Part.LineSegment(V(2, -52, 0), V(2, -170, 0)),  # 2
    Part.ArcOfCircle(Part.Circle(V(2, -140, 0), V(0, 0, 1), 30), math.radians(-90), math.radians(-45)),  # 3
    Part.LineSegment(V(23, -161, 0), V(111, -73, 0)),  # 4
    Part.LineSegment(V(12, -62, 0), V(107, -62, 0)),  # 5
    Part.ArcOfCircle(Part.Circle(V(90, -52, 0), V(0, 0, 1), 20), math.radians(-45), math.radians(-30)),  # 6
    Part.LineSegment(V(104, -66, 0), V(16, -154, 0)),  # 7
    Part.ArcOfCircle(Part.Circle(V(2, -140, 0), V(0, 0, 1), 20), math.radians(-60), math.radians(-45)),  # 8
    Part.LineSegment(V(12, -157, 0), V(12, -62, 0)),  # 9
], False)
sketch13.addConstraint([
    Sketcher.Constraint("Coincident", 0, 2, 1, 1),
    Sketcher.Constraint("Coincident", 1, 2, 2, 1),
    Sketcher.Constraint("Coincident", 2, 2, 3, 1),
    Sketcher.Constraint("Tangent", 3, 2, 4, 1),
    Sketcher.Constraint("Tangent", 4, 2, 0, 1),
    Sketcher.Constraint("Coincident", 5, 2, 6, 2),
    Sketcher.Constraint("Tangent", 6, 1, 7, 1),
    Sketcher.Constraint("Tangent", 7, 2, 8, 2),
    Sketcher.Constraint("Coincident", 8, 1, 9, 1),
    Sketcher.Constraint("Coincident", 9, 2, 5, 1),
    Sketcher.Constraint("Horizontal", 1),
    Sketcher.Constraint("Vertical", 2),
    Sketcher.Constraint("Horizontal", 5),
    Sketcher.Constraint("Vertical", 9),
    Sketcher.Constraint("Coincident", 6, 3, 0, 3),
    Sketcher.Constraint("Coincident", 8, 3, 3, 3),
    Sketcher.Constraint("Equal", 0, 3),
    Sketcher.Constraint("Equal", 6, 8),
    Sketcher.Constraint("Horizontal", 6, 3, 0, 2),
    Sketcher.Constraint("Vertical", 8, 3, 1, 2),
    Sketcher.Constraint("Equal", 1, 2),
    Sketcher.Constraint("Equal", 5, 9),
    Sketcher.Constraint("Radius", 0, 30.0),
    Sketcher.Constraint("Radius", 6, 20.0),
    Sketcher.Constraint("DistanceX", 1, 2, 1, 1, 118.0),
    Sketcher.Constraint("DistanceX", -1, 1, 0, 3, 90.0),
    Sketcher.Constraint("DistanceY", 0, 3, -1, 1, 52.0),
    Sketcher.Constraint("DistanceY", 5, 2, -1, 1, 62.0),
])
sketch13.setExpression("Constraints[22]", "Params.sketch13_radius")
sketch13.setExpression("Constraints[23]", "Params.sketch13_radius2")
sketch13.setExpression("Constraints[24]", "Params.sketch13_width")
pad7 = doc.addObject("PartDesign::Pad", "Pad006")
body5.addObject(pad7)
pad7.Profile = sketch13
pad7.setExpression("Length", "Params.pad7_length")

# Sketch on XY plane
sketch14 = doc.addObject("Sketcher::SketchObject", "Sketch013")
body5.addObject(sketch14)
sketch14.AttachmentSupport = (doc.getObject("XY_Plane004"), [""])
sketch14.MapMode = "FlatFace"
add_polygon(sketch14, [(120, -50), (0, -50), (0, -170), (2, -170), (2, -52), (120, -52)])  # lines 0-5
sketch14.addConstraint([
    Sketcher.Constraint("Horizontal", 0),
    Sketcher.Constraint("Vertical", 1),
    Sketcher.Constraint("Horizontal", 2),
    Sketcher.Constraint("Vertical", 3),
    Sketcher.Constraint("Horizontal", 4),
    Sketcher.Constraint("Vertical", 5),
    Sketcher.Constraint("PointOnObject", 0, 2, -2),
    Sketcher.Constraint("Equal", 0, 1),
    Sketcher.Constraint("Equal", 4, 3),
    Sketcher.Constraint("DistanceX", 0, 2, 0, 1, 120.0),
    Sketcher.Constraint("DistanceX", 2, 1, 2, 2, 2.0),
    Sketcher.Constraint("DistanceY", 0, 2, -1, 1, 50.0),
])
sketch14.setExpression("Constraints[15]", "Params.sketch14_width")
sketch14.setExpression("Constraints[16]", "Params.sketch14_width2")
pad8 = doc.addObject("PartDesign::Pad", "Pad007")
body5.addObject(pad8)
pad8.Profile = sketch14
pad8.setExpression("Length", "Params.pad8_length")
doc.recompute()

fillet5 = doc.addObject("PartDesign::Fillet", "Fillet004")
body5.addObject(fillet5)
fillet5.Base = (pad8, edges_at(pad8, [(1, -170, 22), (120, -51, 22)]))
fillet5.setExpression("Radius", "Params.fillet5_radius")

# Sketch on YZ plane
sketch15 = doc.addObject("Sketcher::SketchObject", "Sketch014")
body5.addObject(sketch15)
sketch15.AttachmentSupport = (doc.getObject("YZ_Plane004"), [""])
sketch15.MapMode = "FlatFace"
sketch15.AttachmentOffset = App.Placement(V(0, 0, 2), App.Rotation())
sketch15.addGeometry([
    Part.Circle(V(-70, 17, 0), V(0, 0, 1), 1.8),
    Part.Circle(V(-110, 17, 0), V(0, 0, 1), 1.8),
    Part.Circle(V(-150, 17, 0), V(0, 0, 1), 1.8),
], False)
sketch15.addConstraint([
    Sketcher.Constraint("Equal", 0, 1),
    Sketcher.Constraint("Equal", 1, 2),
    Sketcher.Constraint("Horizontal", 0, 3, 1, 3),
    Sketcher.Constraint("Horizontal", 1, 3, 2, 3),
    Sketcher.Constraint("Diameter", 0, 3.5),
    Sketcher.Constraint("DistanceX", 0, 3, -1, 1, 70.0),
    Sketcher.Constraint("DistanceY", -1, 1, 0, 3, 17.0),
    Sketcher.Constraint("DistanceX", 1, 3, -1, 1, 110.0),
    Sketcher.Constraint("DistanceX", 2, 3, -1, 1, 150.0),
])
sketch15.setExpression("Constraints[4]", "Params.sketch15_diameter")
doc.recompute()
hole7 = doc.addObject("PartDesign::Hole", "Hole006")
body5.addObject(hole7)
hole7.Profile = sketch15
hole7.ThreadType = "None"
hole7.setExpression("Diameter", "Params.hole7_diameter")
hole7.DepthType = "Dimension"
hole7.setExpression("Depth", "Params.hole7_depth")
hole7.DrillPoint = "Angled"
hole7.DrillPointAngle = 118
hole7.HoleCutType = "Countersink"
hole7.setExpression("HoleCutDiameter", "Params.hole7_csink_diameter")
hole7.HoleCutCountersinkAngle = 90

# Sketch on XZ plane
sketch16 = doc.addObject("Sketcher::SketchObject", "Sketch015")
body5.addObject(sketch16)
sketch16.AttachmentSupport = (doc.getObject("XZ_Plane004"), [""])
sketch16.MapMode = "FlatFace"
sketch16.AttachmentOffset = App.Placement(V(0, 0, 52), App.Rotation())
sketch16.addGeometry([
    Part.Circle(V(20, 17, 0), V(0, 0, 1), 1.8),
    Part.Circle(V(60, 17, 0), V(0, 0, 1), 1.8),
    Part.Circle(V(100, 17, 0), V(0, 0, 1), 1.8),
], False)
sketch16.addConstraint([
    Sketcher.Constraint("Equal", 0, 1),
    Sketcher.Constraint("Equal", 1, 2),
    Sketcher.Constraint("Horizontal", 0, 3, 1, 3),
    Sketcher.Constraint("Horizontal", 1, 3, 2, 3),
    Sketcher.Constraint("Diameter", 0, 3.5),
    Sketcher.Constraint("DistanceX", -1, 1, 0, 3, 20.0),
    Sketcher.Constraint("DistanceY", -1, 1, 0, 3, 17.0),
    Sketcher.Constraint("DistanceX", -1, 1, 1, 3, 60.0),
    Sketcher.Constraint("DistanceX", -1, 1, 2, 3, 100.0),
])
sketch16.setExpression("Constraints[4]", "Params.sketch16_diameter")
doc.recompute()
hole8 = doc.addObject("PartDesign::Hole", "Hole007")
body5.addObject(hole8)
hole8.Profile = sketch16
hole8.ThreadType = "None"
hole8.setExpression("Diameter", "Params.hole8_diameter")
hole8.DepthType = "Dimension"
hole8.setExpression("Depth", "Params.hole8_depth")
hole8.DrillPoint = "Angled"
hole8.DrillPointAngle = 118
hole8.HoleCutType = "Countersink"
hole8.setExpression("HoleCutDiameter", "Params.hole8_csink_diameter")
hole8.HoleCutCountersinkAngle = 90
body6 = doc.addObject("PartDesign::Body", "Body005")

# Sketch on XY plane
sketch17 = doc.addObject("Sketcher::SketchObject", "Sketch016")
body6.addObject(sketch17)
sketch17.AttachmentSupport = (doc.getObject("XY_Plane005"), [""])
sketch17.MapMode = "FlatFace"
sketch17.addGeometry([
    Part.LineSegment(V(-46, -72, 0), V(-26, -72, 0)),  # 0
    Part.LineSegment(V(-26, -72, 0), V(-26, -62, 0)),  # 1
    Part.ArcOfCircle(Part.Circle(V(-36, -62, 0), V(0, 0, 1), 10), math.radians(0), math.radians(90)),  # 2
    Part.LineSegment(V(-36, -52, 0), V(-46, -52, 0)),  # 3
    Part.LineSegment(V(-46, -52, 0), V(-46, -72, 0)),  # 4
], False)
sketch17.addConstraint([
    Sketcher.Constraint("Coincident", 0, 2, 1, 1),
    Sketcher.Constraint("Tangent", 1, 2, 2, 1),
    Sketcher.Constraint("Tangent", 2, 2, 3, 1),
    Sketcher.Constraint("Coincident", 3, 2, 4, 1),
    Sketcher.Constraint("Coincident", 4, 2, 0, 1),
    Sketcher.Constraint("Horizontal", 0),
    Sketcher.Constraint("Vertical", 1),
    Sketcher.Constraint("Horizontal", 3),
    Sketcher.Constraint("Vertical", 4),
    Sketcher.Constraint("Equal", 3, 1),
    Sketcher.Constraint("Radius", 2, 10.0),
    Sketcher.Constraint("DistanceX", 0, 1, 0, 2, 20.0),
    Sketcher.Constraint("DistanceX", 2, 3, -1, 1, 36.151802),
    Sketcher.Constraint("DistanceY", 2, 3, -1, 1, 62.469887),
])
sketch17.setExpression("Constraints[10]", "Params.sketch17_radius")
sketch17.setExpression("Constraints[11]", "Params.sketch17_width")
pad9 = doc.addObject("PartDesign::Pad", "Pad008")
body6.addObject(pad9)
pad9.Profile = sketch17
pad9.setExpression("Length", "Params.pad9_length")

# Sketch on XY plane
sketch18 = doc.addObject("Sketcher::SketchObject", "Sketch017")
body6.addObject(sketch18)
sketch18.AttachmentSupport = (doc.getObject("XY_Plane005"), [""])
sketch18.MapMode = "FlatFace"
add_polygon(sketch18, [(-48.2, -52.5), (-48.2, -74.5), (-26.2, -74.5), (-26.2, -72.5), (-46.2, -72.5), (-46.2, -52.5)])  # lines 0-5
sketch18.addConstraint([
    Sketcher.Constraint("Vertical", 0),
    Sketcher.Constraint("Horizontal", 1),
    Sketcher.Constraint("Vertical", 2),
    Sketcher.Constraint("Horizontal", 3),
    Sketcher.Constraint("Vertical", 4),
    Sketcher.Constraint("Horizontal", 5),
    Sketcher.Constraint("Equal", 1, 0),
    Sketcher.Constraint("Equal", 5, 2),
    Sketcher.Constraint("DistanceX", 1, 1, 1, 2, 22.0),
    Sketcher.Constraint("DistanceX", 3, 2, 3, 1, 20.0),
    Sketcher.Constraint("DistanceX", 0, 2, -1, 1, 48.151802),
    Sketcher.Constraint("DistanceY", 0, 2, -1, 1, 74.469887),
])
sketch18.setExpression("Constraints[14]", "Params.sketch18_width")
sketch18.setExpression("Constraints[15]", "Params.sketch18_width2")
pad10 = doc.addObject("PartDesign::Pad", "Pad009")
body6.addObject(pad10)
pad10.Profile = sketch18
pad10.setExpression("Length", "Params.pad10_length")
doc.recompute()

fillet6 = doc.addObject("PartDesign::Fillet", "Fillet005")
body6.addObject(fillet6)
fillet6.Base = (pad10, edges_at(pad10, [(-26.152, -73.47, 22), (-47.152, -52.47, 22)]))
fillet6.setExpression("Radius", "Params.fillet6_radius")

# Sketch on YZ plane
sketch19 = doc.addObject("Sketcher::SketchObject", "Sketch018")
body6.addObject(sketch19)
sketch19.AttachmentSupport = (doc.getObject("YZ_Plane005"), [""])
sketch19.MapMode = "FlatFace"
sketch19.AttachmentOffset = App.Placement(V(0, 0, -46.151802), App.Rotation())
sketch19.addGeometry(Part.Circle(V(-62.5, 12, 0), V(0, 0, 1), 1.8), False)
sketch19.addConstraint([
    Sketcher.Constraint("Diameter", 0, 3.5),
    Sketcher.Constraint("DistanceY", -1, 1, 0, 3, 12.0),
    Sketcher.Constraint("DistanceX", 0, 3, -1, 1, 62.469887),
])
sketch19.setExpression("Constraints[0]", "Params.sketch19_diameter")
doc.recompute()
hole9 = doc.addObject("PartDesign::Hole", "Hole008")
body6.addObject(hole9)
hole9.Profile = sketch19
hole9.ThreadType = "None"
hole9.setExpression("Diameter", "Params.hole9_diameter")
hole9.DepthType = "Dimension"
hole9.setExpression("Depth", "Params.hole9_depth")
hole9.DrillPoint = "Angled"
hole9.DrillPointAngle = 118
hole9.HoleCutType = "Countersink"
hole9.setExpression("HoleCutDiameter", "Params.hole9_csink_diameter")
hole9.HoleCutCountersinkAngle = 90

# Sketch on XZ plane
sketch20 = doc.addObject("Sketcher::SketchObject", "Sketch019")
body6.addObject(sketch20)
sketch20.AttachmentSupport = (doc.getObject("XZ_Plane005"), [""])
sketch20.MapMode = "FlatFace"
sketch20.AttachmentOffset = App.Placement(V(0, 0, 72.469887), App.Rotation())
sketch20.addGeometry(Part.Circle(V(-36.2, 12, 0), V(0, 0, 1), 1.8), False)
sketch20.addConstraint([
    Sketcher.Constraint("Diameter", 0, 3.5),
    Sketcher.Constraint("DistanceY", -1, 1, 0, 3, 12.0),
    Sketcher.Constraint("DistanceX", 0, 3, -1, 1, 36.151802),
])
sketch20.setExpression("Constraints[0]", "Params.sketch20_diameter")
doc.recompute()
hole10 = doc.addObject("PartDesign::Hole", "Hole009")
body6.addObject(hole10)
hole10.Profile = sketch20
hole10.ThreadType = "None"
hole10.setExpression("Diameter", "Params.hole10_diameter")
hole10.DepthType = "Dimension"
hole10.setExpression("Depth", "Params.hole10_depth")
hole10.DrillPoint = "Angled"
hole10.DrillPointAngle = 118
hole10.HoleCutType = "Countersink"
hole10.setExpression("HoleCutDiameter", "Params.hole10_csink_diameter")
hole10.HoleCutCountersinkAngle = 90
hole10.Reversed = True

# Sketch on XY plane
sketch21 = doc.addObject("Sketcher::SketchObject", "Sketch020")
body6.addObject(sketch21)
sketch21.AttachmentSupport = (doc.getObject("XY_Plane005"), [""])
sketch21.MapMode = "FlatFace"
sketch21.AttachmentOffset = App.Placement(V(0, 0, 2), App.Rotation())
sketch21.addGeometry(Part.Circle(V(-36.2, -62.5, 0), V(0, 0, 1), 1.8), False)
sketch21.addConstraint([
    Sketcher.Constraint("Diameter", 0, 3.5),
    Sketcher.Constraint("DistanceX", 0, 3, -1, 1, 36.151802),
    Sketcher.Constraint("DistanceY", 0, 3, -1, 1, 62.469887),
])
sketch21.setExpression("Constraints[0]", "Params.sketch21_diameter")
doc.recompute()
hole11 = doc.addObject("PartDesign::Hole", "Hole010")
body6.addObject(hole11)
hole11.Profile = sketch21
hole11.ThreadType = "None"
hole11.setExpression("Diameter", "Params.hole11_diameter")
hole11.DepthType = "Dimension"
hole11.setExpression("Depth", "Params.hole11_depth")
hole11.DrillPoint = "Angled"
hole11.DrillPointAngle = 118
hole11.HoleCutType = "Countersink"
hole11.setExpression("HoleCutDiameter", "Params.hole11_csink_diameter")
hole11.HoleCutCountersinkAngle = 90
mirroring.Visibility = False

doc.recompute()
